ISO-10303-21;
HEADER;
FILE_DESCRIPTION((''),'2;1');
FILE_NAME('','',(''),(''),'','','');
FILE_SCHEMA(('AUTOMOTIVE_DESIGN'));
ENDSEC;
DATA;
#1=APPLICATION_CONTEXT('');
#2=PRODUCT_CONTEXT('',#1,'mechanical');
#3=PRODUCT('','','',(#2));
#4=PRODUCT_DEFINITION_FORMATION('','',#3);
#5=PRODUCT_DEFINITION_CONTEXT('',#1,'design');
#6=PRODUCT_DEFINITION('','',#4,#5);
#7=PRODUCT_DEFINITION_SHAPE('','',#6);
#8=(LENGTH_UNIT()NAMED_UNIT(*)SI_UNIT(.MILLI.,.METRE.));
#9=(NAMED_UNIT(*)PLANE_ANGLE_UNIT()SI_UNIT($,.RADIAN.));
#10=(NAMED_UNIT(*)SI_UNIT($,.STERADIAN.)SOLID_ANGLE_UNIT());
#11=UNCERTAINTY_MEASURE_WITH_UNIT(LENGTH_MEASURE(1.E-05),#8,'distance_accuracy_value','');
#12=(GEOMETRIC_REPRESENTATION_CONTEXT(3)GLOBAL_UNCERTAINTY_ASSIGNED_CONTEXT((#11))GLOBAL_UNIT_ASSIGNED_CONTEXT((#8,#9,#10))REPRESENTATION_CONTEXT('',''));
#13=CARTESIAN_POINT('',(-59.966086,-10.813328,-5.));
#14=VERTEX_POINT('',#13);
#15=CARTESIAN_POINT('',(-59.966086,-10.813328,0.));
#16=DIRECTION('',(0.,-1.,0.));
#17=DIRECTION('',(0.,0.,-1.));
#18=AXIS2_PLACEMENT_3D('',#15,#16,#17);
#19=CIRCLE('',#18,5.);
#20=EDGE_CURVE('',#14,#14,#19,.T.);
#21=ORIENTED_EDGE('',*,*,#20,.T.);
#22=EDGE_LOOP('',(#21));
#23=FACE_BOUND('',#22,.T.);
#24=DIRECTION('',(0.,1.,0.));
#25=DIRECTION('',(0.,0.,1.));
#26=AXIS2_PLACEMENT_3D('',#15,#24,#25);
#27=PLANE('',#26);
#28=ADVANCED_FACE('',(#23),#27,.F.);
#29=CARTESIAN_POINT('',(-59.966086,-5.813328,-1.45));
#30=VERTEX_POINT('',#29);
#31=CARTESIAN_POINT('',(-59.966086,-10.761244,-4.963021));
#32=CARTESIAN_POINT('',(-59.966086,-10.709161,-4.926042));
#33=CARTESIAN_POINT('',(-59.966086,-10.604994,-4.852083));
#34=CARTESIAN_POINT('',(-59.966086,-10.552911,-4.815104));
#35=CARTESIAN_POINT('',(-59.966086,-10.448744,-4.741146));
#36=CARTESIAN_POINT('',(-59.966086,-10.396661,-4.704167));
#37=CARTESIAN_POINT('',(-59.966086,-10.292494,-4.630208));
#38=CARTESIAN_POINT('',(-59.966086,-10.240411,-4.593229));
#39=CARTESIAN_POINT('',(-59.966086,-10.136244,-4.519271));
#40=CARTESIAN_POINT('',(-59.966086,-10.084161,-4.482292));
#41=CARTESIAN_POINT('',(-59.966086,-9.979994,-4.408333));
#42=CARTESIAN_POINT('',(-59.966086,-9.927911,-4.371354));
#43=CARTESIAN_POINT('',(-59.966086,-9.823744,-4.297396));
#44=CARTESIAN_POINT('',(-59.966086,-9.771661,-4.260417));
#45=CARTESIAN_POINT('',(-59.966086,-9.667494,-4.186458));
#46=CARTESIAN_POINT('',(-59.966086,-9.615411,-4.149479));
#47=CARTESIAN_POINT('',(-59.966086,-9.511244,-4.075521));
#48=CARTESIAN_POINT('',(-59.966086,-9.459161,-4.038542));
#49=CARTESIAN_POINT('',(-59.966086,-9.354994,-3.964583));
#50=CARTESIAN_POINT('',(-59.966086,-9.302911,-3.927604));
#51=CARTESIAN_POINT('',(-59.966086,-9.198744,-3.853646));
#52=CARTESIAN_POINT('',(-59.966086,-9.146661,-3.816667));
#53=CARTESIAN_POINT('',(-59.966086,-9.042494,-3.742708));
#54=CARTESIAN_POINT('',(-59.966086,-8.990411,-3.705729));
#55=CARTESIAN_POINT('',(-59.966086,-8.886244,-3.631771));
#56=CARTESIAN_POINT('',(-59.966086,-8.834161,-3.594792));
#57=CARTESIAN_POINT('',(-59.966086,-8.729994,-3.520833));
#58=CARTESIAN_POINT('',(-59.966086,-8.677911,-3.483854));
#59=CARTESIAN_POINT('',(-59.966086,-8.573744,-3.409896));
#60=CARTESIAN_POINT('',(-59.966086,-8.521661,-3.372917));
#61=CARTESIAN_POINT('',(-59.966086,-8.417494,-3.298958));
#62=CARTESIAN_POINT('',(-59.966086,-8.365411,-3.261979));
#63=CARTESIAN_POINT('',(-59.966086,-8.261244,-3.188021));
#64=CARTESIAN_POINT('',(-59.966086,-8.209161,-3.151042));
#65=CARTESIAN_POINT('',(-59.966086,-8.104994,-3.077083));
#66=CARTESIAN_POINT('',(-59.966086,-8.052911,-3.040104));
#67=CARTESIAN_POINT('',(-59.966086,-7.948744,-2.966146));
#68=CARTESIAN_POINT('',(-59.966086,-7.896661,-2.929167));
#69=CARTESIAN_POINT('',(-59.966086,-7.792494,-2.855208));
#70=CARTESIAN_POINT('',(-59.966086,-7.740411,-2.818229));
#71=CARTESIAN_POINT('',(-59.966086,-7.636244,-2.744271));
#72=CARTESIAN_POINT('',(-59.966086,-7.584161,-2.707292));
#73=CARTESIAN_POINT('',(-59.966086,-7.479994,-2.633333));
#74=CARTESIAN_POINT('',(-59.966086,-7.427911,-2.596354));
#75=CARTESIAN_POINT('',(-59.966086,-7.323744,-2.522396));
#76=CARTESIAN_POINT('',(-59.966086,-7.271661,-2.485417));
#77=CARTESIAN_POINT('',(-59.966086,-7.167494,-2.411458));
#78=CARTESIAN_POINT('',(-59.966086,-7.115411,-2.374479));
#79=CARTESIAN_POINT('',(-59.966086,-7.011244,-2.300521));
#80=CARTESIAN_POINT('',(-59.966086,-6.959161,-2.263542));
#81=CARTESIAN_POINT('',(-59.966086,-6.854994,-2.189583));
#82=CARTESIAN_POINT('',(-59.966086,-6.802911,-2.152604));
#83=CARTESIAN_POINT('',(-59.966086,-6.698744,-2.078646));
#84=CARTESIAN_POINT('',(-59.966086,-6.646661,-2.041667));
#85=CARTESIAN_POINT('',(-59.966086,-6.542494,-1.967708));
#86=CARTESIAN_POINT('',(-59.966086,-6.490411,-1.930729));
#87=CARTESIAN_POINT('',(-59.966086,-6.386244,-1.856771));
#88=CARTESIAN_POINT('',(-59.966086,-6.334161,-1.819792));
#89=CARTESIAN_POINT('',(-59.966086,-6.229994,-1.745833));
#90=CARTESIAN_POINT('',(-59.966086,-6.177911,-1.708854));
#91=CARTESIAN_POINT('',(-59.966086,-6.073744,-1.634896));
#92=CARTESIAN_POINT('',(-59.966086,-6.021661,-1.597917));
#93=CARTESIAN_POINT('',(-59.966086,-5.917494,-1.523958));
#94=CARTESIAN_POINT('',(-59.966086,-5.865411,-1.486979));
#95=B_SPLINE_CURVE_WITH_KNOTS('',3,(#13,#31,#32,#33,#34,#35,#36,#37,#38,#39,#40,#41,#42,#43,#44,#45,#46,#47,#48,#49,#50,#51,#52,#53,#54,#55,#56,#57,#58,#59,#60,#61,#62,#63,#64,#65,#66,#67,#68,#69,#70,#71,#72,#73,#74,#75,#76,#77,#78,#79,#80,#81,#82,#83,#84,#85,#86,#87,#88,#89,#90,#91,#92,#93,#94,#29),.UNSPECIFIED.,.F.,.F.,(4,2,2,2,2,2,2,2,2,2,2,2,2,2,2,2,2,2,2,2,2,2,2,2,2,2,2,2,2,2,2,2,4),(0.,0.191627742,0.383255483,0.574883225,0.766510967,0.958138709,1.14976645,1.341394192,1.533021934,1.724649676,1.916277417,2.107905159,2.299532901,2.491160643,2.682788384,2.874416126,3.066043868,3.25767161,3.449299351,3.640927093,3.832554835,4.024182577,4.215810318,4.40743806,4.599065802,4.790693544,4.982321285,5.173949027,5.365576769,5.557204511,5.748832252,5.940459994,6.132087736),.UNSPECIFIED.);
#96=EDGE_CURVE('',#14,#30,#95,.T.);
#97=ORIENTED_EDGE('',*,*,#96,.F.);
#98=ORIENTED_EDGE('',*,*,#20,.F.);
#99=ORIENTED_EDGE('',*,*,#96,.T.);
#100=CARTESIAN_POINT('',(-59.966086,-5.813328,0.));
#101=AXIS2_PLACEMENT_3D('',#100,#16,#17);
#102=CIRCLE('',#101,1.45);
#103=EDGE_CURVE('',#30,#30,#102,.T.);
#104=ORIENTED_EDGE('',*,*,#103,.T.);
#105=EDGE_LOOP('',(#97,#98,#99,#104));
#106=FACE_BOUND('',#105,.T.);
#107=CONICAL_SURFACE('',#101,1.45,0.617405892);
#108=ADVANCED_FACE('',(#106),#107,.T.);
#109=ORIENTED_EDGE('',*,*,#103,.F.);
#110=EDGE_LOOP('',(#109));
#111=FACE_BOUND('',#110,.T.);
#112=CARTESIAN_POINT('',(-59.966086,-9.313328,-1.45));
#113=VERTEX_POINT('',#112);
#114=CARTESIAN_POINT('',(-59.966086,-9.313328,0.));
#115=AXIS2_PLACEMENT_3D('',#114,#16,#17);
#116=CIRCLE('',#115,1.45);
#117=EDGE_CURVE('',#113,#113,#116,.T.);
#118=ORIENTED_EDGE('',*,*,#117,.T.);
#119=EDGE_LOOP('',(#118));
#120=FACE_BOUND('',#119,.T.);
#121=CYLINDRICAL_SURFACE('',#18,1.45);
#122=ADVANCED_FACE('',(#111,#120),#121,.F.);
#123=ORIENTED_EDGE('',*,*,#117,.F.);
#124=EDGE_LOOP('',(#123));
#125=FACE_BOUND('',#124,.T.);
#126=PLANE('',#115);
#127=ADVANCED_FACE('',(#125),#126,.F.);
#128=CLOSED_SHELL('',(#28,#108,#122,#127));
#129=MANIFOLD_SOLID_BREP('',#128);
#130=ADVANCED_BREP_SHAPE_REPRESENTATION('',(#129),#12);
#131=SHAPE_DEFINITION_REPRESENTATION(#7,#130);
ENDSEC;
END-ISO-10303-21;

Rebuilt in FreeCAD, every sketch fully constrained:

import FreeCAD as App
import Part
import Sketcher

V = App.Vector
Q = App.Units.Quantity


def add_polygon(sketch, points):
    """Adds a closed chain of lines whose ends are joined by coincident constraints."""
    first, n = sketch.GeometryCount, len(points)
    for a, b in zip(points, points[1:] + points[:1]):
        sketch.addGeometry(Part.LineSegment(App.Vector(*a, 0), App.Vector(*b, 0)), False)
    for i in range(n):
        sketch.addConstraint(Sketcher.Constraint("Coincident", first + i, 2, first + (i + 1) % n, 1))

doc = App.newDocument("Part")
body = doc.addObject("PartDesign::Body", "Body")

sketch1 = body.newObject("Sketcher::SketchObject", "Sketch")
sketch1.AttachmentSupport = (doc.getObject("XY_Plane"), [""])
sketch1.MapMode = "FlatFace"
add_polygon(sketch1, [(-65, -10.8), (-60, -10.8), (-60, -9.3), (-61.4, -9.3), (-61.4, -5.8)])
sketch1.addGeometry(Part.LineSegment(V(-60, -10.8, 0), V(-60, -5.8, 0)), True)
sketch1.addConstraint([
    Sketcher.Constraint("Horizontal", 0),
    Sketcher.Constraint("Vertical", 1),
    Sketcher.Constraint("Horizontal", 2),
    Sketcher.Constraint("Vertical", 3),
    Sketcher.Constraint("Vertical", 5),
    Sketcher.Constraint("Coincident", 5, 1, 0, 2),
    Sketcher.Constraint("Horizontal", 3, 2, 5, 2),
    Sketcher.Constraint("Equal", 0, 5),
    Sketcher.Constraint("DistanceX", 0, 1, 0, 2, Q("5 mm")),
    Sketcher.Constraint("DistanceY", 1, 1, 1, 2, Q("1.5 mm")),
    Sketcher.Constraint("DistanceX", 2, 2, 2, 1, Q("1.45 mm")),
    Sketcher.Constraint("DistanceX", 0, 2, -1, 1, Q("59.966086 mm")),
    Sketcher.Constraint("DistanceY", 0, 2, -1, 1, Q("10.813328 mm")),
])
revolution = body.newObject("PartDesign::Revolution", "Revolution")
revolution.Profile = sketch1
revolution.ReferenceAxis = (sketch1, ["Axis0"])
revolution.Angle = 360

doc.recompute()
